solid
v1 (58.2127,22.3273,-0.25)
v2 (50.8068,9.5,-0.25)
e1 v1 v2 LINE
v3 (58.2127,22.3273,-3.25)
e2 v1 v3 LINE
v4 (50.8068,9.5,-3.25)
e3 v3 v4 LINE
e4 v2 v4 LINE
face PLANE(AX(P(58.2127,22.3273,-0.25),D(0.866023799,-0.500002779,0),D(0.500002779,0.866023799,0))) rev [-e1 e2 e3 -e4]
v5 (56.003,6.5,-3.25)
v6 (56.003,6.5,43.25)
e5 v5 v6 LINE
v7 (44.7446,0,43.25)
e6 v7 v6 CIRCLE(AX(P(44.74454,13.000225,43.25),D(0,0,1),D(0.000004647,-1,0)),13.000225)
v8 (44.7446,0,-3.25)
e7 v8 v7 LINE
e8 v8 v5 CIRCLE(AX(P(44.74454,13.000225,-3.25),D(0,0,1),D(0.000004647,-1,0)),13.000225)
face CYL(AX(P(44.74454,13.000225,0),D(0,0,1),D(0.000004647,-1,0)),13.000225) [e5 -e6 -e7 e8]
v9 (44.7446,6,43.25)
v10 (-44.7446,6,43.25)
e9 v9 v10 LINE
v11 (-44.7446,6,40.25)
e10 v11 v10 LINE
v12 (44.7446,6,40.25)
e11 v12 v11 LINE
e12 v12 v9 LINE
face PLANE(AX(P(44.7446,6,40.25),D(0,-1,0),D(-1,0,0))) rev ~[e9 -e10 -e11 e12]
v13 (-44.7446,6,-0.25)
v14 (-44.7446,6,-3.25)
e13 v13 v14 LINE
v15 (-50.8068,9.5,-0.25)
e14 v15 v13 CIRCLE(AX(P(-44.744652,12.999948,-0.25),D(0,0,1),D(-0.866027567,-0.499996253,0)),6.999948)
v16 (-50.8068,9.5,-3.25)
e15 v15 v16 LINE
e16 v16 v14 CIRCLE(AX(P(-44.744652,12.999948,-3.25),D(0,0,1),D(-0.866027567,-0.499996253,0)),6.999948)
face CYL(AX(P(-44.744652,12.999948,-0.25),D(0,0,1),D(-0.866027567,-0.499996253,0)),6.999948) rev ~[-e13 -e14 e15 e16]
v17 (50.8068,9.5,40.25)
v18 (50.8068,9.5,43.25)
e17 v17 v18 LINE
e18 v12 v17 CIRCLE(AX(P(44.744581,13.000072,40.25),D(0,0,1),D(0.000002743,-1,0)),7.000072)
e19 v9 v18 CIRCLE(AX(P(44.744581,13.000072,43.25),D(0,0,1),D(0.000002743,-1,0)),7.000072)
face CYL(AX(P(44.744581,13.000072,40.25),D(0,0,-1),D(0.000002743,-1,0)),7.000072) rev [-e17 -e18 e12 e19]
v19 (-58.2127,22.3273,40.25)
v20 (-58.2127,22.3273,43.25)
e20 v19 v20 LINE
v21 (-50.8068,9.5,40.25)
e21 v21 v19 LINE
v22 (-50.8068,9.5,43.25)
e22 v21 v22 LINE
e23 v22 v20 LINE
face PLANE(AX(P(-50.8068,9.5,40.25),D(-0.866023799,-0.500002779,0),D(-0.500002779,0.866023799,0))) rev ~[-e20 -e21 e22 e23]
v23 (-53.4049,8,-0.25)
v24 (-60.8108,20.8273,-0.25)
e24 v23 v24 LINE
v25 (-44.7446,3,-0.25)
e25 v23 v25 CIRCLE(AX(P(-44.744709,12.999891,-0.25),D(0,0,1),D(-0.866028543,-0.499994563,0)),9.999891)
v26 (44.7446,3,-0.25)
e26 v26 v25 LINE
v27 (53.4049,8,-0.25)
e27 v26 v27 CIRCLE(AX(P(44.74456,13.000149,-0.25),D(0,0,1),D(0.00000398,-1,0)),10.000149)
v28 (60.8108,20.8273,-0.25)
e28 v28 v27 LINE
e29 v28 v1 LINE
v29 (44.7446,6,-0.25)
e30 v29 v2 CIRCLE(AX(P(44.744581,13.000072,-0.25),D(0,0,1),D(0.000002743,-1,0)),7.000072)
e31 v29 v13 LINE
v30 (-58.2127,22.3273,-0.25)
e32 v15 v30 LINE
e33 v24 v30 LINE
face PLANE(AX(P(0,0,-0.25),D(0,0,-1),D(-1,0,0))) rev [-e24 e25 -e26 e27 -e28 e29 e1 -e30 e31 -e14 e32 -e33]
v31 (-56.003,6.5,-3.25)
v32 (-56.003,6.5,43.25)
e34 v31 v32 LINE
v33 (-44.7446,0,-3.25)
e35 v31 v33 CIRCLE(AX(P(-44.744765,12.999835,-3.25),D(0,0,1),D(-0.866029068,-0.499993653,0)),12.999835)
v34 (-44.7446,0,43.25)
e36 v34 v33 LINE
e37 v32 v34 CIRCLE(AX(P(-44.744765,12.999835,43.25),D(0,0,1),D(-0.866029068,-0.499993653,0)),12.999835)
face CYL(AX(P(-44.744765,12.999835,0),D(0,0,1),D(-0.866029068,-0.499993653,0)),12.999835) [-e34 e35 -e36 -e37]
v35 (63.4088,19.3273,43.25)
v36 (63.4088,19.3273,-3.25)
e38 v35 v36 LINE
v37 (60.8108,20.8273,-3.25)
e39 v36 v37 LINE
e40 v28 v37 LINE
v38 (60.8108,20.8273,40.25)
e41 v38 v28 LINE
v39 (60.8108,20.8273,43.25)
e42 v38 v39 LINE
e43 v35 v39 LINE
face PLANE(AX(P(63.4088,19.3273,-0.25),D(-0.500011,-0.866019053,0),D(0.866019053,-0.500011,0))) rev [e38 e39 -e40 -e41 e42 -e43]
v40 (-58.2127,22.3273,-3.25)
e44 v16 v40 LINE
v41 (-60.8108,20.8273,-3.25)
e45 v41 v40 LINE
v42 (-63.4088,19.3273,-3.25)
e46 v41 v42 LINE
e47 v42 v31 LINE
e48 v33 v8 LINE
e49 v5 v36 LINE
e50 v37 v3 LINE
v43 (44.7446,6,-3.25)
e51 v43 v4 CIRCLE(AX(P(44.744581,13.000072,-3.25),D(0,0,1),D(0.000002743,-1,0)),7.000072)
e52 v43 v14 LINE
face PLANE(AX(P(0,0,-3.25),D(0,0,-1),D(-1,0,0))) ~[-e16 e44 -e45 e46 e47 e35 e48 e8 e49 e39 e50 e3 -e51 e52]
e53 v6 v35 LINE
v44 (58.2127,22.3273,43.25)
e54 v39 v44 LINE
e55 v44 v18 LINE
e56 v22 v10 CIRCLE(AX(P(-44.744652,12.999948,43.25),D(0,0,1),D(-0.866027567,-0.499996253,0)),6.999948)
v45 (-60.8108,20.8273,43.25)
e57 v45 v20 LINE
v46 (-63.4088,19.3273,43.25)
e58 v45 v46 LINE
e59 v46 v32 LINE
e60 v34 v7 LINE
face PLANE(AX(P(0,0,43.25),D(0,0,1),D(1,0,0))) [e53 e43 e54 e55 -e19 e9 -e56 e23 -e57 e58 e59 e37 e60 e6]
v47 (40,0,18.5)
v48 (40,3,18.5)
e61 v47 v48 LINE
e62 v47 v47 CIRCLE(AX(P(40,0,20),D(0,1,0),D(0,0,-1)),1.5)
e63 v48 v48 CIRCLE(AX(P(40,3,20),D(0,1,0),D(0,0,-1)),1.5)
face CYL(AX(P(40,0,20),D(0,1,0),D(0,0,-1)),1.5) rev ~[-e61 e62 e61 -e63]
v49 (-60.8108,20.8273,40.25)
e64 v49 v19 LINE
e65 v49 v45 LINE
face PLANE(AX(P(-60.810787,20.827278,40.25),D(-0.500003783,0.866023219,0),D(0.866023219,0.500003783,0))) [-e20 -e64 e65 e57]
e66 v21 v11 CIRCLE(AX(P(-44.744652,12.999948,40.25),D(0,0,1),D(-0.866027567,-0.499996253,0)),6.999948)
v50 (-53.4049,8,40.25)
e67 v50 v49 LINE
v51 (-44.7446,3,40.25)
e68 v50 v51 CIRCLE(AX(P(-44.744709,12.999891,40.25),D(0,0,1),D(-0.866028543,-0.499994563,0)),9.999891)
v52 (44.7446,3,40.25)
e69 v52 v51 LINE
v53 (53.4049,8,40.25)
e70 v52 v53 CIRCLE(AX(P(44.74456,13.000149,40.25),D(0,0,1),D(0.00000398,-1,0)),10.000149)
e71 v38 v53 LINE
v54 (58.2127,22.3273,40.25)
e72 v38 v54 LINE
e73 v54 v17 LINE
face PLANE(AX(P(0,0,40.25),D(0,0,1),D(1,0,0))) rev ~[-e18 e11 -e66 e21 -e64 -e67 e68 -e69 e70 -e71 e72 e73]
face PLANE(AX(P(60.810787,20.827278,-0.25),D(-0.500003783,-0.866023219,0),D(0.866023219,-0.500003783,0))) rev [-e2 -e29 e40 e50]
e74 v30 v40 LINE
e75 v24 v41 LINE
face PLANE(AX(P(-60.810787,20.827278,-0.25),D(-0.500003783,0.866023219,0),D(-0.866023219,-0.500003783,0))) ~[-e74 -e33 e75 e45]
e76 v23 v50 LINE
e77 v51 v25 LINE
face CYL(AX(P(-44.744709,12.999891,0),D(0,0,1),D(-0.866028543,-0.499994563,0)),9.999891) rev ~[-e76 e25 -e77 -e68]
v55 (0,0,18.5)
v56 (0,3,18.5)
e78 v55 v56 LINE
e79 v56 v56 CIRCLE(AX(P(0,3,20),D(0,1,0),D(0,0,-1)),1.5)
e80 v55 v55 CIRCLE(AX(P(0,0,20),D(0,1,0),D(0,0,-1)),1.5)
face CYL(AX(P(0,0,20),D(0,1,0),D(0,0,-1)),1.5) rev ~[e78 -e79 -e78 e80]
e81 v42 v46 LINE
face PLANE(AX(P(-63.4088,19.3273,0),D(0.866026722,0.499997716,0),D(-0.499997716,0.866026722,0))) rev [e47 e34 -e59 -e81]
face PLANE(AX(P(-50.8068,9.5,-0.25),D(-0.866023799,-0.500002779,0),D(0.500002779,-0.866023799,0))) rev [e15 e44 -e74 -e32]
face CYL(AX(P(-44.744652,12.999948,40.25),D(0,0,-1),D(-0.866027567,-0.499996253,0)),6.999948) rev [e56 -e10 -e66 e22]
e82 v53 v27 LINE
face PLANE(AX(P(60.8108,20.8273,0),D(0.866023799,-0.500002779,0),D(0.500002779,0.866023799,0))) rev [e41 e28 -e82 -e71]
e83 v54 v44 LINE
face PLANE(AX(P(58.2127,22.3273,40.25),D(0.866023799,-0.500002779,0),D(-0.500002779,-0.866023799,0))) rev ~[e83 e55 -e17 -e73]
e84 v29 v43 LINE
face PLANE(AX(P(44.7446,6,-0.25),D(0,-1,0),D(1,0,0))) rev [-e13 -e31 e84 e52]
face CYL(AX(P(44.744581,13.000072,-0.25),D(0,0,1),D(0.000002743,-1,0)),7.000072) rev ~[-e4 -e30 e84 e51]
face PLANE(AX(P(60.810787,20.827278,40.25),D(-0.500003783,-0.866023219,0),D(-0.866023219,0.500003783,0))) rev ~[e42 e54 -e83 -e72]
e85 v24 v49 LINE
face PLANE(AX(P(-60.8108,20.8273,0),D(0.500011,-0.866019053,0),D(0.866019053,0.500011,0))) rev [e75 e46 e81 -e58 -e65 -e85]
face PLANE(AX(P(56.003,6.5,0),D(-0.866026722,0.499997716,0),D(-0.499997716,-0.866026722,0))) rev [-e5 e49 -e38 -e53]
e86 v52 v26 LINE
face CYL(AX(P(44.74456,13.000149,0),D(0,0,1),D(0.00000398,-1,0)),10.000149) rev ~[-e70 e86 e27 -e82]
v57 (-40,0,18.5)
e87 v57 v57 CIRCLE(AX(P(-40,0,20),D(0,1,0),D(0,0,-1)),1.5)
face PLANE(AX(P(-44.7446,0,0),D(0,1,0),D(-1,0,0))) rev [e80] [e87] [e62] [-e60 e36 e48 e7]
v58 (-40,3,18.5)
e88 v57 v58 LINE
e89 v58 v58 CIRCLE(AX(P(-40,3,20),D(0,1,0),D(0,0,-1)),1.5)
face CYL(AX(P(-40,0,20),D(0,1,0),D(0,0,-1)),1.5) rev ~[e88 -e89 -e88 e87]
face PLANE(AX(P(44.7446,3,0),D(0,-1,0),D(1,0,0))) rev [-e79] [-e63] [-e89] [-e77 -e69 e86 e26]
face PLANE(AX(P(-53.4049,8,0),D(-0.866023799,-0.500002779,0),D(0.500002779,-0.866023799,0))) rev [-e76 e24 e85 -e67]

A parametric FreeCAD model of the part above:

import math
import FreeCAD as App
import Part
import Sketcher

V = App.Vector
Q = App.Units.Quantity

doc = App.newDocument("Part")
body = doc.addObject("PartDesign::Body", "Body")

# Sketch on XY plane
sketch1 = doc.addObject("Sketcher::SketchObject", "Sketch")
body.addObject(sketch1)
sketch1.AttachmentSupport = (doc.XY_Plane, [""])
sketch1.MapMode = "FlatFace"
sketch1.addGeometry([
    Part.ArcOfCircle(Part.Circle(V(-44.7, 13, 0), V(0, 0, 1), 10), math.radians(-150), math.radians(-90)),  # 0
    Part.LineSegment(V(-53.4, 8, 0), V(-60.8, 20.8, 0)),  # 1
    Part.LineSegment(V(-60.8, 20.8, 0), V(-63.4, 19.3, 0)),  # 2
    Part.LineSegment(V(-63.4, 19.3, 0), V(-56, 6.5, 0)),  # 3
    Part.ArcOfCircle(Part.Circle(V(-44.7, 13, 0), V(0, 0, 1), 13), math.radians(-150), math.radians(-90)),  # 4
    Part.LineSegment(V(-44.7, 0, 0), V(44.7, 0, 0)),  # 5
    Part.ArcOfCircle(Part.Circle(V(44.7, 13, 0), V(0, 0, 1), 13), math.radians(-90), math.radians(-30)),  # 6
    Part.LineSegment(V(56, 6.5, 0), V(63.4, 19.3, 0)),  # 7
    Part.LineSegment(V(63.4, 19.3, 0), V(60.8, 20.8, 0)),  # 8
    Part.LineSegment(V(60.8, 20.8, 0), V(53.4, 8, 0)),  # 9
    Part.ArcOfCircle(Part.Circle(V(44.7, 13, 0), V(0, 0, 1), 10), math.radians(-90), math.radians(-30)),  # 10
    Part.LineSegment(V(44.7, 3, 0), V(-44.7, 3, 0)),  # 11
], False)
sketch1.addConstraint([
    Sketcher.Constraint("Tangent", 0, 1, 1, 1),
    Sketcher.Constraint("Coincident", 1, 2, 2, 1),
    Sketcher.Constraint("Coincident", 2, 2, 3, 1),
    Sketcher.Constraint("Tangent", 3, 2, 4, 1),
    Sketcher.Constraint("Tangent", 4, 2, 5, 1),
    Sketcher.Constraint("Tangent", 5, 2, 6, 1),
    Sketcher.Constraint("Tangent", 6, 2, 7, 1),
    Sketcher.Constraint("Coincident", 7, 2, 8, 1),
    Sketcher.Constraint("Coincident", 8, 2, 9, 1),
    Sketcher.Constraint("Tangent", 9, 2, 10, 2),
    Sketcher.Constraint("Tangent", 10, 1, 11, 1),
    Sketcher.Constraint("Tangent", 11, 2, 0, 2),
    Sketcher.Constraint("Horizontal", 5),
    Sketcher.Constraint("Horizontal", 11),
    Sketcher.Constraint("Coincident", 4, 3, 0, 3),
    Sketcher.Constraint("Coincident", 10, 3, 6, 3),
    Sketcher.Constraint("Equal", 4, 6),
    Sketcher.Constraint("Symmetric", 4, 2, 5, 2, -1, 1),
    Sketcher.Constraint("Symmetric", 2, 2, 7, 2, -2),
    Sketcher.Constraint("Symmetric", 1, 2, 8, 2, -2),
    Sketcher.Constraint("Perpendicular", 1, 2),
    Sketcher.Constraint("Perpendicular", 2, 3),
    Sketcher.Constraint("Radius", 0, Q("10 mm")),
    Sketcher.Constraint("Radius", 4, Q("13 mm")),
    Sketcher.Constraint("Angle", 1, Q("120.0002 deg")),
    Sketcher.Constraint("DistanceX", 5, 1, 5, 2, Q("89.4892 mm")),
    Sketcher.Constraint("DistanceX", 1, 2, 0, 1, Q("7.406 mm")),
])
pad1 = doc.addObject("PartDesign::Pad", "Pad")
body.addObject(pad1)
pad1.Profile = sketch1
pad1.Length = 40

# Sketch on XZ plane
sketch2 = doc.addObject("Sketcher::SketchObject", "Sketch001")
body.addObject(sketch2)
sketch2.AttachmentSupport = (doc.XZ_Plane, [""])
sketch2.MapMode = "FlatFace"
sketch2.addGeometry([
    Part.Circle(V(-40, 20, 0), V(0, 0, 1), 1.5),
    Part.Circle(V(0, 20, 0), V(0, 0, 1), 1.5),
    Part.Circle(V(40, 20, 0), V(0, 0, 1), 1.5),
], False)
sketch2.addConstraint([
    Sketcher.Constraint("Equal", 0, 1),
    Sketcher.Constraint("Equal", 1, 2),
    Sketcher.Constraint("Symmetric", 0, 3, 2, 3, -2),
    Sketcher.Constraint("PointOnObject", 1, 3, -2),
    Sketcher.Constraint("Horizontal", 0, 3, 1, 3),
    Sketcher.Constraint("Diameter", 0, Q("3 mm")),
    Sketcher.Constraint("DistanceX", 0, 3, -1, 1, Q("40 mm")),
    Sketcher.Constraint("DistanceY", -1, 1, 0, 3, Q("20 mm")),
])
doc.recompute()
hole = doc.addObject("PartDesign::Hole", "Hole")
body.addObject(hole)
hole.Profile = sketch2
hole.ThreadType = "None"
hole.Diameter = 3
hole.DepthType = "ThroughAll"

# Sketch on XY plane
sketch3 = doc.addObject("Sketcher::SketchObject", "Sketch002")
body.addObject(sketch3)
sketch3.AttachmentSupport = (doc.XY_Plane, [""])
sketch3.MapMode = "FlatFace"
sketch3.AttachmentOffset = App.Placement(V(0, 0, 40), App.Rotation())
sketch3.addGeometry([
    Part.ArcOfCircle(Part.Circle(V(-44.7, 13, 0), V(0, 0, 1), 10), math.radians(-150), math.radians(-90)),  # 0
    Part.LineSegment(V(-53.4, 8, 0), V(-60.8, 20.8, 0)),  # 1
    Part.LineSegment(V(-60.8, 20.8, 0), V(-63.4, 19.3, 0)),  # 2
    Part.LineSegment(V(-63.4, 19.3, 0), V(-56, 6.5, 0)),  # 3
    Part.ArcOfCircle(Part.Circle(V(-44.7, 13, 0), V(0, 0, 1), 13), math.radians(-150), math.radians(-90)),  # 4
    Part.LineSegment(V(-44.7, 0, 0), V(44.7, 0, 0)),  # 5
    Part.ArcOfCircle(Part.Circle(V(44.7, 13, 0), V(0, 0, 1), 13), math.radians(-90), math.radians(-30)),  # 6
    Part.LineSegment(V(56, 6.5, 0), V(63.4, 19.3, 0)),  # 7
    Part.LineSegment(V(63.4, 19.3, 0), V(60.8, 20.8, 0)),  # 8
    Part.LineSegment(V(60.8, 20.8, 0), V(53.4, 8, 0)),  # 9
    Part.ArcOfCircle(Part.Circle(V(44.7, 13, 0), V(0, 0, 1), 10), math.radians(-90), math.radians(-30)),  # 10
    Part.LineSegment(V(44.7, 3, 0), V(-44.7, 3, 0)),  # 11
], False)
sketch3.addConstraint([
    Sketcher.Constraint("Tangent", 0, 1, 1, 1),
    Sketcher.Constraint("Coincident", 1, 2, 2, 1),
    Sketcher.Constraint("Coincident", 2, 2, 3, 1),
    Sketcher.Constraint("Tangent", 3, 2, 4, 1),
    Sketcher.Constraint("Tangent", 4, 2, 5, 1),
    Sketcher.Constraint("Tangent", 5, 2, 6, 1),
    Sketcher.Constraint("Tangent", 6, 2, 7, 1),
    Sketcher.Constraint("Coincident", 7, 2, 8, 1),
    Sketcher.Constraint("Coincident", 8, 2, 9, 1),
    Sketcher.Constraint("Tangent", 9, 2, 10, 2),
    Sketcher.Constraint("Tangent", 10, 1, 11, 1),
    Sketcher.Constraint("Tangent", 11, 2, 0, 2),
    Sketcher.Constraint("Horizontal", 5),
    Sketcher.Constraint("Horizontal", 11),
    Sketcher.Constraint("Coincident", 4, 3, 0, 3),
    Sketcher.Constraint("Coincident", 10, 3, 6, 3),
    Sketcher.Constraint("Equal", 4, 6),
    Sketcher.Constraint("Symmetric", 4, 2, 5, 2, -1, 1),
    Sketcher.Constraint("Symmetric", 2, 2, 7, 2, -2),
    Sketcher.Constraint("Symmetric", 1, 2, 8, 2, -2),
    Sketcher.Constraint("Perpendicular", 1, 2),
    Sketcher.Constraint("Perpendicular", 2, 3),
    Sketcher.Constraint("Radius", 0, Q("10 mm")),
    Sketcher.Constraint("Radius", 4, Q("13 mm")),
    Sketcher.Constraint("Angle", 1, Q("120.0002 deg")),
    Sketcher.Constraint("DistanceX", 5, 1, 5, 2, Q("89.4892 mm")),
    Sketcher.Constraint("DistanceX", 1, 2, 0, 1, Q("7.406 mm")),
])
pad2 = doc.addObject("PartDesign::Pad", "Pad001")
body.addObject(pad2)
pad2.Profile = sketch3
pad2.Length = 0.25

# Sketch on XY plane
sketch4 = doc.addObject("Sketcher::SketchObject", "Sketch003")
body.addObject(sketch4)
sketch4.AttachmentSupport = (doc.XY_Plane, [""])
sketch4.MapMode = "FlatFace"
sketch4.AttachmentOffset = App.Placement(V(0, 0, 40.25), App.Rotation())
sketch4.addGeometry([
    Part.LineSegment(V(-58.2, 22.3, 0), V(-60.8, 20.8, 0)),  # 0
    Part.LineSegment(V(-60.8, 20.8, 0), V(-63.4, 19.3, 0)),  # 1
    Part.LineSegment(V(-63.4, 19.3, 0), V(-56, 6.5, 0)),  # 2
    Part.ArcOfCircle(Part.Circle(V(-44.7, 13, 0), V(0, 0, 1), 13), math.radians(-150), math.radians(-90)),  # 3
    Part.LineSegment(V(-44.7, 0, 0), V(44.7, 0, 0)),  # 4
    Part.ArcOfCircle(Part.Circle(V(44.7, 13, 0), V(0, 0, 1), 13), math.radians(-90), math.radians(-30)),  # 5
    Part.LineSegment(V(56, 6.5, 0), V(63.4, 19.3, 0)),  # 6
    Part.LineSegment(V(63.4, 19.3, 0), V(60.8, 20.8, 0)),  # 7
    Part.LineSegment(V(60.8, 20.8, 0), V(58.2, 22.3, 0)),  # 8
    Part.LineSegment(V(58.2, 22.3, 0), V(50.8, 9.5, 0)),  # 9
    Part.ArcOfCircle(Part.Circle(V(44.7, 13, 0), V(0, 0, 1), 7), math.radians(-90), math.radians(-30)),  # 10
    Part.LineSegment(V(44.7, 6, 0), V(-44.7, 6, 0)),  # 11
    Part.ArcOfCircle(Part.Circle(V(-44.7, 13, 0), V(0, 0, 1), 7), math.radians(-150), math.radians(-90)),  # 12
    Part.LineSegment(V(-50.8, 9.5, 0), V(-58.2, 22.3, 0)),  # 13
], False)
sketch4.addConstraint([
    Sketcher.Constraint("Coincident", 0, 2, 1, 1),
    Sketcher.Constraint("Coincident", 1, 2, 2, 1),
    Sketcher.Constraint("Tangent", 2, 2, 3, 1),
    Sketcher.Constraint("Tangent", 3, 2, 4, 1),
    Sketcher.Constraint("Tangent", 4, 2, 5, 1),
    Sketcher.Constraint("Tangent", 5, 2, 6, 1),
    Sketcher.Constraint("Coincident", 6, 2, 7, 1),
    Sketcher.Constraint("Coincident", 7, 2, 8, 1),
    Sketcher.Constraint("Coincident", 8, 2, 9, 1),
    Sketcher.Constraint("Tangent", 9, 2, 10, 2),
    Sketcher.Constraint("Tangent", 10, 1, 11, 1),
    Sketcher.Constraint("Tangent", 11, 2, 12, 2),
    Sketcher.Constraint("Tangent", 12, 1, 13, 1),
    Sketcher.Constraint("Coincident", 13, 2, 0, 1),
    Sketcher.Constraint("Horizontal", 4),
    Sketcher.Constraint("Horizontal", 11),
    Sketcher.Constraint("Coincident", 10, 3, 5, 3),
    Sketcher.Constraint("Coincident", 12, 3, 3, 3),
    Sketcher.Constraint("Equal", 3, 5),
    Sketcher.Constraint("Symmetric", 3, 2, 4, 2, -1, 1),
    Sketcher.Constraint("Symmetric", 1, 2, 6, 2, -2),
    Sketcher.Constraint("Symmetric", 0, 2, 7, 2, -2),
    Sketcher.Constraint("Symmetric", 8, 2, 13, 2, -2),
    Sketcher.Constraint("Parallel", 0, 1),
    Sketcher.Constraint("Perpendicular", 1, 2),
    Sketcher.Constraint("Perpendicular", 8, 9),
    Sketcher.Constraint("Equal", 0, 1),
    Sketcher.Constraint("Distance", 0, Q("3 mm")),
    Sketcher.Constraint("Radius", 3, Q("13 mm")),
    Sketcher.Constraint("DistanceY", 6, 2, 8, 2, Q("3 mm")),
    Sketcher.Constraint("DistanceX", 4, 1, 4, 2, Q("89.4892 mm")),
    Sketcher.Constraint("DistanceX", 5, 3, 8, 2, Q("13.468 mm")),
])
pad3 = doc.addObject("PartDesign::Pad", "Pad002")
body.addObject(pad3)
pad3.Profile = sketch4
pad3.Length = 3
doc.recompute()

datumplane = doc.addObject("PartDesign::Plane", "DatumPlane")
body.addObject(datumplane)
datumplane.AttachmentSupport = (doc.XY_Plane, [""])
datumplane.MapMode = "FlatFace"
datumplane.AttachmentOffset = App.Placement(V(0, 0, 20), App.Rotation())
mirrored = doc.addObject("PartDesign::Mirrored", "Mirrored")
body.addObject(mirrored)
mirrored.Originals = [pad2, pad3]
mirrored.MirrorPlane = (datumplane, [""])
body.Tip = mirrored

doc.recompute()
